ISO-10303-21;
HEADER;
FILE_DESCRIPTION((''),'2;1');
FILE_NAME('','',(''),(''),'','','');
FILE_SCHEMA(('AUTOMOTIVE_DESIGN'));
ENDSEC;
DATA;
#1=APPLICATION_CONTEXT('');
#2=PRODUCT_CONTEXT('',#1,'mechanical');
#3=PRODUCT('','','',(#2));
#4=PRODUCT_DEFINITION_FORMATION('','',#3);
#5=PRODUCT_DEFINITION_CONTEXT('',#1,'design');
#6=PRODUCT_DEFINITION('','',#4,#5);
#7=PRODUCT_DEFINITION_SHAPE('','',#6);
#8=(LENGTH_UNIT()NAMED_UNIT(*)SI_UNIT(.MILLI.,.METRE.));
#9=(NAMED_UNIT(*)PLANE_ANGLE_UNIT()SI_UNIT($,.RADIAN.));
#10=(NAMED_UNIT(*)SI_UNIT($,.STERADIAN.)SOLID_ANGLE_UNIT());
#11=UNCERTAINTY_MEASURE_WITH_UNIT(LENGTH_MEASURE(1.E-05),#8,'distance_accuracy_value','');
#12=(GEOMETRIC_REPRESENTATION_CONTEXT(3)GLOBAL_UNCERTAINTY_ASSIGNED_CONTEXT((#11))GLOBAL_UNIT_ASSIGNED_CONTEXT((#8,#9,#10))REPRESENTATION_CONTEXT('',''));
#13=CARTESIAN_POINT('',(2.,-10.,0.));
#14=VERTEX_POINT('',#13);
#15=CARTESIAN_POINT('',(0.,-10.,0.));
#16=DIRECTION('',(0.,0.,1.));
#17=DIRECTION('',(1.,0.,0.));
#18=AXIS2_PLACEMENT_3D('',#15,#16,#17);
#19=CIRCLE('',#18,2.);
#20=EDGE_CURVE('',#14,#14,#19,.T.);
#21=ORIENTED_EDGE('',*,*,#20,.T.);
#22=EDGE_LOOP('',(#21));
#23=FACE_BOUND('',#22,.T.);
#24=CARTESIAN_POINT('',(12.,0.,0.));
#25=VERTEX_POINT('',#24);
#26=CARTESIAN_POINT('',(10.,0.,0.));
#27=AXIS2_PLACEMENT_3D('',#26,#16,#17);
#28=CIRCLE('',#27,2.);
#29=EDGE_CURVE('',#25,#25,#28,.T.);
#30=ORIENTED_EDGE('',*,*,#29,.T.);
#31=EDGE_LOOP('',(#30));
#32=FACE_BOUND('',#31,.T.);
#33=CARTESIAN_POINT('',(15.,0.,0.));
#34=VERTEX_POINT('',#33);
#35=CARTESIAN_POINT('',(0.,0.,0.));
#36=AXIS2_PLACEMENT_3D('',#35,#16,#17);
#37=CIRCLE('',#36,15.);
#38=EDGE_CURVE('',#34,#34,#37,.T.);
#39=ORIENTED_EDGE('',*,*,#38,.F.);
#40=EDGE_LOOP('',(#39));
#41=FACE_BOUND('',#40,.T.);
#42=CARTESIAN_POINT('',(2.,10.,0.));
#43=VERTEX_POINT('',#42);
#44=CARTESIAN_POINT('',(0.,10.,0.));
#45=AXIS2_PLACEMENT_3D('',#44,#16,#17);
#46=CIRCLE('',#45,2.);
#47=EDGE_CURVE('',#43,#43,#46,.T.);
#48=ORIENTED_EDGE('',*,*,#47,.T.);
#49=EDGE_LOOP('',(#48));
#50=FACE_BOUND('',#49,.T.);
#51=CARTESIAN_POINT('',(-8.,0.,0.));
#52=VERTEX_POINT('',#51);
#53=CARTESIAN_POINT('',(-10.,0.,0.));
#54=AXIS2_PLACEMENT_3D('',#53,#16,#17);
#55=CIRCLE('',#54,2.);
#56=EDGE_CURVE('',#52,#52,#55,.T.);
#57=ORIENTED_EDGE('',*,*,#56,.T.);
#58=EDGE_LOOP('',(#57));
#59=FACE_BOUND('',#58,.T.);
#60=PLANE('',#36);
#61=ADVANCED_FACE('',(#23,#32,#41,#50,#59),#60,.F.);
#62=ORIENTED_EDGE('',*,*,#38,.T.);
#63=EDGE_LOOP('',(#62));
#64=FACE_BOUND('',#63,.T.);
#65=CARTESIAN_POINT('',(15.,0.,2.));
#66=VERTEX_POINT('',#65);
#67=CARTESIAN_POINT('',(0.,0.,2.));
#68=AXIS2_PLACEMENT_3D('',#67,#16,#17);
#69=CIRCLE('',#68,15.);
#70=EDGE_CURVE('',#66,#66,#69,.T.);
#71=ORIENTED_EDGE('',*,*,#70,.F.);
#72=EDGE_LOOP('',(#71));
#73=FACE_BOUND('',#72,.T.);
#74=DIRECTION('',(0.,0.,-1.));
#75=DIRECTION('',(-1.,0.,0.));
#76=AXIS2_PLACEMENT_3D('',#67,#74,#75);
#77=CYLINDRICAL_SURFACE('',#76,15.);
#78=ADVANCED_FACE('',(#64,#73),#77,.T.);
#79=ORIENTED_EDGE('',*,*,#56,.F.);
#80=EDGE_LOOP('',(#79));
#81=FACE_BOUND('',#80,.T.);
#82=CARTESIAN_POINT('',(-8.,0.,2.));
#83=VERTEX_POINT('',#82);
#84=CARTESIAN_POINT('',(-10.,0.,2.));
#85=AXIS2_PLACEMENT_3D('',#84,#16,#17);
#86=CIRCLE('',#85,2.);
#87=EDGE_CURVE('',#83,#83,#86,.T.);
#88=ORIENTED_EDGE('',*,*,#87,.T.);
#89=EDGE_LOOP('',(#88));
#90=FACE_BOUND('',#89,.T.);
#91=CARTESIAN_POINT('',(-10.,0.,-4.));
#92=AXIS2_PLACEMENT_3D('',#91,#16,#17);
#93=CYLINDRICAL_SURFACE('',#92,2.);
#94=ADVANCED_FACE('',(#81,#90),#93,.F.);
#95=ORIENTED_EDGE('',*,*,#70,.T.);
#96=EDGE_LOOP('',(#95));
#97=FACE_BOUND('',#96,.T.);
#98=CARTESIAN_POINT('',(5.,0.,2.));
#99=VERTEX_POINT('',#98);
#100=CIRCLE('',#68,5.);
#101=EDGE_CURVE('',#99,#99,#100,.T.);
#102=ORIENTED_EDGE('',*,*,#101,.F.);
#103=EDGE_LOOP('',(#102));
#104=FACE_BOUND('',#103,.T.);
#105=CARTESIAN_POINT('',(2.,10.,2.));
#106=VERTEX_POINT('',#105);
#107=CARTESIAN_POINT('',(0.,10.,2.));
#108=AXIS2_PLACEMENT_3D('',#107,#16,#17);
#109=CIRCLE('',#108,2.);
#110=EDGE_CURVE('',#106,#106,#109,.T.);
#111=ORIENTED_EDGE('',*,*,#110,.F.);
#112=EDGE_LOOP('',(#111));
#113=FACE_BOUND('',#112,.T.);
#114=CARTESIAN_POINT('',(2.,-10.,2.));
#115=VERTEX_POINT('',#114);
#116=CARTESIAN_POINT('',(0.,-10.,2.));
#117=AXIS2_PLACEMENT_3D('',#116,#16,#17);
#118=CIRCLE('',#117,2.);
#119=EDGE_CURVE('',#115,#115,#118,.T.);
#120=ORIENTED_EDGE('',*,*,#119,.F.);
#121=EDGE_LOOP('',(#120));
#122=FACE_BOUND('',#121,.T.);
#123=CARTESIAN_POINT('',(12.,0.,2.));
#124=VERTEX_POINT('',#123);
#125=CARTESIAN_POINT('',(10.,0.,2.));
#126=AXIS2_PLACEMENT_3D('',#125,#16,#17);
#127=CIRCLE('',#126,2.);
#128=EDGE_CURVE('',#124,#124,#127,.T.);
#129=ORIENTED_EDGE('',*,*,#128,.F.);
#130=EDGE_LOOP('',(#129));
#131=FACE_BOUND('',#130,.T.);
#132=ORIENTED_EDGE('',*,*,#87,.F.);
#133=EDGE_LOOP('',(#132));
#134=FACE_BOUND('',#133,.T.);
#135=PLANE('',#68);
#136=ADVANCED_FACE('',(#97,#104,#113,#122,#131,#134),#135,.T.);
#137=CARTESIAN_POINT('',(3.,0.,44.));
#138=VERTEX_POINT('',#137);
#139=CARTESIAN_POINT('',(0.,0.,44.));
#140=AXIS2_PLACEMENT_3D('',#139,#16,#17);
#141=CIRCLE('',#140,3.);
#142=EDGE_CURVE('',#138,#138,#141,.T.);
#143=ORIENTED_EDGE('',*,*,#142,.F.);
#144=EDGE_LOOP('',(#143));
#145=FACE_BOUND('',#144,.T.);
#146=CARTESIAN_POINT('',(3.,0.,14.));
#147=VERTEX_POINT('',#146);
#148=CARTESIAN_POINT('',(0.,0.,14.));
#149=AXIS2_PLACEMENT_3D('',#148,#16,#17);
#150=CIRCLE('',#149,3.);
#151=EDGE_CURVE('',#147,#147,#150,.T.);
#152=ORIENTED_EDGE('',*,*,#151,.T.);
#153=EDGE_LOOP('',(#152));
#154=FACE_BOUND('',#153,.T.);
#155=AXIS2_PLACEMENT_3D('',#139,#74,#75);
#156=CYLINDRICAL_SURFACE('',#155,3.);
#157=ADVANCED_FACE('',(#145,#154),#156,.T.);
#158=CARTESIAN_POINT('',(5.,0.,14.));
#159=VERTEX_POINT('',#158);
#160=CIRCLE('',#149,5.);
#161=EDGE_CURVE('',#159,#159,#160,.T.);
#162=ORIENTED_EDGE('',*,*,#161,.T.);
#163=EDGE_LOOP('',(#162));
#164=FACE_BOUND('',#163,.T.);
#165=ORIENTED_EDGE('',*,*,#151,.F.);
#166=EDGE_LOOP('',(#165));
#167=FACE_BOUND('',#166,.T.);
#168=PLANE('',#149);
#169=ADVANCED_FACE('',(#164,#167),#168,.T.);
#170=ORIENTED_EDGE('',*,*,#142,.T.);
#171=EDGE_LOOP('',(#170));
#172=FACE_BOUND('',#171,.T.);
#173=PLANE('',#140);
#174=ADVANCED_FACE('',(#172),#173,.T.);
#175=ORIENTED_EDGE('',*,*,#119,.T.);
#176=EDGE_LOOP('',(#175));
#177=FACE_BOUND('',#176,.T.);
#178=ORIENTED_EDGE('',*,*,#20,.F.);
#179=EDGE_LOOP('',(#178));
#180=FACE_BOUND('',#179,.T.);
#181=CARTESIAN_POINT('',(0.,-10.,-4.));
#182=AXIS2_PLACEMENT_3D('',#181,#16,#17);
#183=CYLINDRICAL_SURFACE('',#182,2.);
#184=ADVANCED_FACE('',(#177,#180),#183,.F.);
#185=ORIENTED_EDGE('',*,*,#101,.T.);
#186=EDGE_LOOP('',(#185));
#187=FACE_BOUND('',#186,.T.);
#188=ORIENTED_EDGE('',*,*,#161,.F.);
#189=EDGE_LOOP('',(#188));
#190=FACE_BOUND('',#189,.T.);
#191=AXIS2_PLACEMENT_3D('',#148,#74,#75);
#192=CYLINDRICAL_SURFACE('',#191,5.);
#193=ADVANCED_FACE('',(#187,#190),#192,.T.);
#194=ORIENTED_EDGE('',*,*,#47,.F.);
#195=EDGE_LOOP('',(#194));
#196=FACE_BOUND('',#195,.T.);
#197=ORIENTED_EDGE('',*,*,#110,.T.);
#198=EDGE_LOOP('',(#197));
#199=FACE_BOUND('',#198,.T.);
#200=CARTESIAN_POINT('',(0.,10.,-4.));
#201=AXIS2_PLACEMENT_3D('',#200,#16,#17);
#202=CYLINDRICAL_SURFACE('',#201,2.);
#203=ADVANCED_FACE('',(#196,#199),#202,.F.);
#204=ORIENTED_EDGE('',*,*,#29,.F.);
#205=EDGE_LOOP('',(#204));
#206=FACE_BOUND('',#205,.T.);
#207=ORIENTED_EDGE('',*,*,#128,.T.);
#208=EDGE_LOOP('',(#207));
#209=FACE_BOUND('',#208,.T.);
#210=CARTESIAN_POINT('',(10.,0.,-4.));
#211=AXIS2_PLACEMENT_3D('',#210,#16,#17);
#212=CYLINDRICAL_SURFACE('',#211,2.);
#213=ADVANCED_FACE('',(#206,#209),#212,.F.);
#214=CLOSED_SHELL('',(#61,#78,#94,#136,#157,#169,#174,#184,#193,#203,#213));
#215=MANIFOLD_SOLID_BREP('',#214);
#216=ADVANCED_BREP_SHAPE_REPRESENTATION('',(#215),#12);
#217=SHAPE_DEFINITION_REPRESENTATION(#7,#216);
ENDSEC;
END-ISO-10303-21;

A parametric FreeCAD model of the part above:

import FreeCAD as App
import Part
import Sketcher
Q = App.Units.Quantity

doc = App.newDocument("Part")
body = doc.addObject("PartDesign::Body", "Body")

sketch1 = body.newObject("Sketcher::SketchObject", "Sketch")
sketch1.AttachmentSupport = (doc.getObject("XY_Plane"), [""])
sketch1.MapMode = "FlatFace"
sketch1.addGeometry(Part.Circle(App.Vector(0, 0, 0), App.Vector(0, 0, 1), 15), False)
sketch1.addConstraint(Sketcher.Constraint("Coincident", 0, 3, -1, 1))
sketch1.addConstraint(Sketcher.Constraint("Diameter", 0, Q("30 mm")))
pad1 = body.newObject("PartDesign::Pad", "Pad")
pad1.Profile = sketch1
pad1.Length = 2

sketch2 = body.newObject("Sketcher::SketchObject", "Sketch001")
sketch2.AttachmentSupport = (doc.getObject("XY_Plane"), [""])
sketch2.MapMode = "FlatFace"
sketch2.AttachmentOffset = App.Placement(App.Vector(0, 0, 2), App.Rotation())
sketch2.addGeometry(Part.Circle(App.Vector(0, 0, 0), App.Vector(0, 0, 1), 5), False)
sketch2.addConstraint(Sketcher.Constraint("Coincident", 0, 3, -1, 1))
sketch2.addConstraint(Sketcher.Constraint("Diameter", 0, Q("10 mm")))
pad2 = body.newObject("PartDesign::Pad", "Pad001")
pad2.Profile = sketch2
pad2.Length = 12

sketch3 = body.newObject("Sketcher::SketchObject", "Sketch002")
sketch3.AttachmentSupport = (doc.getObject("XY_Plane"), [""])
sketch3.MapMode = "FlatFace"
sketch3.AttachmentOffset = App.Placement(App.Vector(0, 0, 2), App.Rotation())
sketch3.addGeometry(Part.Circle(App.Vector(0, 10, 0), App.Vector(0, 0, 1), 2), False)
sketch3.addGeometry(Part.Circle(App.Vector(10, 0, 0), App.Vector(0, 0, 1), 2), False)
sketch3.addGeometry(Part.Circle(App.Vector(0, -10, 0), App.Vector(0, 0, 1), 2), False)
sketch3.addGeometry(Part.Circle(App.Vector(-10, 0, 0), App.Vector(0, 0, 1), 2), False)
sketch3.addConstraint(Sketcher.Constraint("Equal", 0, 1))
sketch3.addConstraint(Sketcher.Constraint("Equal", 1, 2))
sketch3.addConstraint(Sketcher.Constraint("Equal", 2, 3))
sketch3.addConstraint(Sketcher.Constraint("Symmetric", 0, 3, 2, 3, -1, 1))
sketch3.addConstraint(Sketcher.Constraint("Symmetric", 1, 3, 3, 3, -1, 1))
sketch3.addConstraint(Sketcher.Constraint("PointOnObject", 0, 3, -2))
sketch3.addConstraint(Sketcher.Constraint("PointOnObject", 1, 3, -1))
sketch3.addConstraint(Sketcher.Constraint("Diameter", 0, Q("4 mm")))
sketch3.addConstraint(Sketcher.Constraint("DistanceY", -1, 1, 0, 3, Q("10 mm")))
sketch3.addConstraint(Sketcher.Constraint("DistanceX", -1, 1, 1, 3, Q("10 mm")))
pocket1 = body.newObject("PartDesign::Pocket", "Pocket")
pocket1.Profile = sketch3
pocket1.Length = 6

sketch4 = body.newObject("Sketcher::SketchObject", "Sketch003")
sketch4.AttachmentSupport = (doc.getObject("XY_Plane"), [""])
sketch4.MapMode = "FlatFace"
sketch4.AttachmentOffset = App.Placement(App.Vector(0, 0, 14), App.Rotation())
sketch4.addGeometry(Part.Circle(App.Vector(0, 0, 0), App.Vector(0, 0, 1), 3), False)
sketch4.addConstraint(Sketcher.Constraint("Coincident", 0, 3, -1, 1))
sketch4.addConstraint(Sketcher.Constraint("Diameter", 0, Q("6 mm")))
pad3 = body.newObject("PartDesign::Pad", "Pad002")
pad3.Profile = sketch4
pad3.Length = 30

doc.recompute()
